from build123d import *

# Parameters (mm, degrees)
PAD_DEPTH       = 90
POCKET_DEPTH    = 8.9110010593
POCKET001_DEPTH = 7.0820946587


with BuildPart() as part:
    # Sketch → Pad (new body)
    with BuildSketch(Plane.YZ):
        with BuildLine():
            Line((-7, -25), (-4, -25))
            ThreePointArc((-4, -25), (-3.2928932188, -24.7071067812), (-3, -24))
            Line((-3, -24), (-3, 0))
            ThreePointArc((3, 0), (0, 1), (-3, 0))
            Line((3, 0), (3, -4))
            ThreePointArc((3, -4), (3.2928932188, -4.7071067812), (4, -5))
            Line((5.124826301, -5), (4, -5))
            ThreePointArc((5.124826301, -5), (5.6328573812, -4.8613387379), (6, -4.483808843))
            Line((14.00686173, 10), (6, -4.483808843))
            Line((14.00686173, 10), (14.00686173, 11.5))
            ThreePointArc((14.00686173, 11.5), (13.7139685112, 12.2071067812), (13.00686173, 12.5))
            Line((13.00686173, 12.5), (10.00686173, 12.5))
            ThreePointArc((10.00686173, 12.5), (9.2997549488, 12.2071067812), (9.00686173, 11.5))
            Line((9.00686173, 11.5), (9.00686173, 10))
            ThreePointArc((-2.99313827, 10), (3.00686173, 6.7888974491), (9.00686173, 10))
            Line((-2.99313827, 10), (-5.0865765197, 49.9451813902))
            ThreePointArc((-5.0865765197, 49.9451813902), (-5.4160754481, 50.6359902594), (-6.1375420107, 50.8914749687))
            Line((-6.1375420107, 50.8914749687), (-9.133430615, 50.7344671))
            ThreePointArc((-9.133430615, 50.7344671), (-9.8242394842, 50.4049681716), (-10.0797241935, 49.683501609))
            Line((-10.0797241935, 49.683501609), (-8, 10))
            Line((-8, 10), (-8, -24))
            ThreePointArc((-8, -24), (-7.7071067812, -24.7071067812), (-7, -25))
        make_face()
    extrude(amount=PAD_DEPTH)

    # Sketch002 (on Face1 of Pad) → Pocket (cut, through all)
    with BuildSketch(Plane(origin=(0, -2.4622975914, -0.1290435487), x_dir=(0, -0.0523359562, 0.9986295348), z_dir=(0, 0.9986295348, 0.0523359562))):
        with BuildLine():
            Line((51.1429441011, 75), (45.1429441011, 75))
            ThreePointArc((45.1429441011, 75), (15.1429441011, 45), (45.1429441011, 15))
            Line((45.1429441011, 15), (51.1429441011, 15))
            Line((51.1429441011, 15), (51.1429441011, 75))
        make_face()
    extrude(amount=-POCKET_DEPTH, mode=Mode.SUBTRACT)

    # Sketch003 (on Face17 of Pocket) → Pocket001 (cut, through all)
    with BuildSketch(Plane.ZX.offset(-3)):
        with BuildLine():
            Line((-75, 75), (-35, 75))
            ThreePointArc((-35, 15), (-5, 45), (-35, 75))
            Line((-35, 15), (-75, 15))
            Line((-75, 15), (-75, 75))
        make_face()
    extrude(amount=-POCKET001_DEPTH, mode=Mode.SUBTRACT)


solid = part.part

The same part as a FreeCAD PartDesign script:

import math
import FreeCAD as App
import Part
import Sketcher
from FreeCAD import Vector
Q = App.Units.Quantity

doc = App.newDocument("Part")
body = doc.addObject("PartDesign::Body", "Body")

# Sketch on YZ plane
sketch1 = doc.addObject("Sketcher::SketchObject", "Sketch")
body.addObject(sketch1)
sketch1.AttachmentSupport = (doc.YZ_Plane, [""])
sketch1.MapMode = "FlatFace"
sketch1.addGeometry([
    Part.LineSegment(Vector(-7, -25, 0), Vector(-4, -25, 0)),  # 0
    Part.ArcOfCircle(Part.Circle(Vector(-4, -24, 0), Vector(0, 0, 1), 1), math.radians(-90), math.radians(0)),  # 1
    Part.LineSegment(Vector(-3, -24, 0), Vector(-3, 0, 0)),  # 2
    Part.ArcOfCircle(Part.Circle(Vector(0, -4, 0), Vector(0, 0, 1), 5), math.radians(53), math.radians(127)),  # 3
    Part.LineSegment(Vector(3, 0, 0), Vector(3, -4, 0)),  # 4
    Part.ArcOfCircle(Part.Circle(Vector(4, -4, 0), Vector(0, 0, 1), 1), math.radians(180), math.radians(270)),  # 5
    Part.LineSegment(Vector(4, -5, 0), Vector(5.1, -5, 0)),  # 6
    Part.ArcOfCircle(Part.Circle(Vector(5.1, -4, 0), Vector(0, 0, 1), 1), math.radians(-90), math.radians(-29)),  # 7
    Part.LineSegment(Vector(6, -4.5, 0), Vector(14, 10, 0)),  # 8
    Part.LineSegment(Vector(14, 10, 0), Vector(14, 11.5, 0)),  # 9
    Part.ArcOfCircle(Part.Circle(Vector(13, 11.5, 0), Vector(0, 0, 1), 1), math.radians(0), math.radians(90)),  # 10
    Part.LineSegment(Vector(13, 12.5, 0), Vector(10, 12.5, 0)),  # 11
    Part.ArcOfCircle(Part.Circle(Vector(10, 11.5, 0), Vector(0, 0, 1), 1), math.radians(90), math.radians(180)),  # 12
    Part.LineSegment(Vector(9, 11.5, 0), Vector(9, 10, 0)),  # 13
    Part.ArcOfCircle(Part.Circle(Vector(3, 14, 0), Vector(0, 0, 1), 7.2), math.radians(-146), math.radians(-34)),  # 14
    Part.LineSegment(Vector(-3, 10, 0), Vector(-5.1, 49.9, 0)),  # 15
    Part.ArcOfCircle(Part.Circle(Vector(-6.1, 49.9, 0), Vector(0, 0, 1), 1), math.radians(3), math.radians(93)),  # 16
    Part.LineSegment(Vector(-6.1, 50.9, 0), Vector(-9.1, 50.7, 0)),  # 17
    Part.ArcOfCircle(Part.Circle(Vector(-9.1, 49.7, 0), Vector(0, 0, 1), 1), math.radians(93), math.radians(183)),  # 18
    Part.LineSegment(Vector(-10.1, 49.7, 0), Vector(-8, 10, 0)),  # 19
    Part.LineSegment(Vector(-8, 10, 0), Vector(-8, -24, 0)),  # 20
    Part.ArcOfCircle(Part.Circle(Vector(-7, -24, 0), Vector(0, 0, 1), 1), math.radians(180), math.radians(270)),  # 21
], False)
sketch1.addConstraint([
    Sketcher.Constraint("Tangent", 0, 2, 1, 1),
    Sketcher.Constraint("Tangent", 1, 2, 2, 1),
    Sketcher.Constraint("Coincident", 2, 2, 3, 2),
    Sketcher.Constraint("Coincident", 3, 1, 4, 1),
    Sketcher.Constraint("Tangent", 4, 2, 5, 1),
    Sketcher.Constraint("Tangent", 5, 2, 6, 1),
    Sketcher.Constraint("Tangent", 6, 2, 7, 1),
    Sketcher.Constraint("Tangent", 7, 2, 8, 1),
    Sketcher.Constraint("Coincident", 8, 2, 9, 1),
    Sketcher.Constraint("Tangent", 9, 2, 10, 1),
    Sketcher.Constraint("Tangent", 10, 2, 11, 1),
    Sketcher.Constraint("Tangent", 11, 2, 12, 1),
    Sketcher.Constraint("Tangent", 12, 2, 13, 1),
    Sketcher.Constraint("Coincident", 13, 2, 14, 2),
    Sketcher.Constraint("Coincident", 14, 1, 15, 1),
    Sketcher.Constraint("Tangent", 15, 2, 16, 1),
    Sketcher.Constraint("Tangent", 16, 2, 17, 1),
    Sketcher.Constraint("Tangent", 17, 2, 18, 1),
    Sketcher.Constraint("Tangent", 18, 2, 19, 1),
    Sketcher.Constraint("Coincident", 19, 2, 20, 1),
    Sketcher.Constraint("Tangent", 20, 2, 21, 1),
    Sketcher.Constraint("Tangent", 21, 2, 0, 1),
    Sketcher.Constraint("Horizontal", 0),
    Sketcher.Constraint("Vertical", 2),
    Sketcher.Constraint("Vertical", 4),
    Sketcher.Constraint("Horizontal", 6),
    Sketcher.Constraint("Vertical", 9),
    Sketcher.Constraint("Horizontal", 11),
    Sketcher.Constraint("Vertical", 13),
    Sketcher.Constraint("Vertical", 20),
    Sketcher.Constraint("Equal", 1, 5),
    Sketcher.Constraint("Equal", 5, 7),
    Sketcher.Constraint("Equal", 7, 10),
    Sketcher.Constraint("Equal", 10, 12),
    Sketcher.Constraint("Equal", 12, 16),
    Sketcher.Constraint("Equal", 16, 18),
    Sketcher.Constraint("Equal", 18, 21),
    Sketcher.Constraint("Symmetric", 2, 2, 3, 1, -1, 1),
    Sketcher.Constraint("PointOnObject", 3, 3, -2),
    Sketcher.Constraint("Perpendicular", 15, 17),
    Sketcher.Constraint("Perpendicular", 17, 19),
    Sketcher.Constraint("Horizontal", 3, 3, 5, 3),
    Sketcher.Constraint("Horizontal", 8, 2, 13, 2),
    Sketcher.Constraint("Horizontal", 13, 2, 14, 1),
    Sketcher.Constraint("Horizontal", 14, 1, 19, 2),
    Sketcher.Constraint("Equal", 0, 11),
    Sketcher.Constraint("Radius", 1, 1.0),
    Sketcher.Constraint("Radius", 3, 5.0),
    Sketcher.Constraint("DistanceX", 0, 1, 0, 2, 3.0),
    Sketcher.Constraint("DistanceY", 2, 1, 2, 2, 24.0),
    Sketcher.Constraint("DistanceY", 4, 2, 4, 1, 4.0),
    Sketcher.Constraint("DistanceY", 20, 2, 20, 1, 34.0),
    Sketcher.Constraint("Angle", 15, Q("93 deg")),
    Sketcher.Constraint("Distance", 15, 40.0),
    Sketcher.Constraint("Distance", 17, 3.0),
    Sketcher.Constraint("DistanceY", 9, 1, 9, 2, 1.5),
    Sketcher.Constraint("DistanceY", -1, 1, 14, 3, 14.0),
    Sketcher.Constraint("DistanceX", -1, 1, 7, 2, 6.0),
    Sketcher.Constraint("DistanceX", 14, 3, 12, 3, 7.0),
])
pad1 = doc.addObject("PartDesign::Pad", "Pad")
body.addObject(pad1)
pad1.Profile = sketch1
pad1.Length = 90

# Sketch on an angled plane
sketch2 = doc.addObject("Sketcher::SketchObject", "Sketch001")
body.addObject(sketch2)
sketch2.Placement = App.Placement(Vector(0, -2.462298, -0.129044), App.Rotation(Vector(0, -0.052335956, 0.998629535), Vector(1, 0, 0), Vector(0, 0.998629535, 0.052335956), "ZXY"))
sketch2.addGeometry([
    Part.LineSegment(Vector(51, 75, 0), Vector(45, 75, 0)),
    Part.ArcOfCircle(Part.Circle(Vector(45, 45, 0), Vector(0, 0, 1), 30), math.radians(90), math.radians(270)),
    Part.LineSegment(Vector(45, 15, 0), Vector(51, 15, 0)),
    Part.LineSegment(Vector(51, 15, 0), Vector(51, 75, 0)),
], False)
sketch2.addConstraint([
    Sketcher.Constraint("Tangent", 0, 2, 1, 1),
    Sketcher.Constraint("Tangent", 1, 2, 2, 1),
    Sketcher.Constraint("Coincident", 2, 2, 3, 1),
    Sketcher.Constraint("Coincident", 3, 2, 0, 1),
    Sketcher.Constraint("Horizontal", 0),
    Sketcher.Constraint("Horizontal", 2),
    Sketcher.Constraint("Vertical", 3),
    Sketcher.Constraint("Radius", 1, 30.0),
    Sketcher.Constraint("DistanceX", 0, 2, 0, 1, 6.0),
    Sketcher.Constraint("DistanceY", -1, 1, 1, 3, 45.0),
    Sketcher.Constraint("DistanceX", -1, 1, 1, 3, 45.142944),
])
pocket1 = doc.addObject("PartDesign::Pocket", "Pocket")
body.addObject(pocket1)
pocket1.Profile = sketch2
pocket1.Type = "ThroughAll"

# Sketch on XZ plane
sketch3 = doc.addObject("Sketcher::SketchObject", "Sketch002")
body.addObject(sketch3)
sketch3.AttachmentSupport = (doc.XZ_Plane, [""])
sketch3.MapMode = "FlatFace"
sketch3.AttachmentOffset = App.Placement(Vector(0, 0, 3), App.Rotation())
sketch3.addGeometry([
    Part.LineSegment(Vector(75, -35, 0), Vector(75, -75, 0)),
    Part.LineSegment(Vector(75, -75, 0), Vector(15, -75, 0)),
    Part.LineSegment(Vector(15, -75, 0), Vector(15, -35, 0)),
    Part.ArcOfCircle(Part.Circle(Vector(45, -35, 0), Vector(0, 0, 1), 30), math.radians(0), math.radians(180)),
], False)
sketch3.addConstraint([
    Sketcher.Constraint("Coincident", 0, 2, 1, 1),
    Sketcher.Constraint("Coincident", 1, 2, 2, 1),
    Sketcher.Constraint("Tangent", 2, 2, 3, 2),
    Sketcher.Constraint("Tangent", 3, 1, 0, 1),
    Sketcher.Constraint("Vertical", 0),
    Sketcher.Constraint("Horizontal", 1),
    Sketcher.Constraint("Vertical", 2),
    Sketcher.Constraint("Radius", 3, 30.0),
    Sketcher.Constraint("DistanceY", 0, 2, 0, 1, 40.0),
    Sketcher.Constraint("DistanceX", -1, 1, 3, 3, 45.0),
    Sketcher.Constraint("DistanceY", 3, 3, -1, 1, 35.0),
])
pocket2 = doc.addObject("PartDesign::Pocket", "Pocket001")
body.addObject(pocket2)
pocket2.Profile = sketch3
pocket2.Type = "ThroughAll"
pocket2.Reversed = True

doc.recompute()
